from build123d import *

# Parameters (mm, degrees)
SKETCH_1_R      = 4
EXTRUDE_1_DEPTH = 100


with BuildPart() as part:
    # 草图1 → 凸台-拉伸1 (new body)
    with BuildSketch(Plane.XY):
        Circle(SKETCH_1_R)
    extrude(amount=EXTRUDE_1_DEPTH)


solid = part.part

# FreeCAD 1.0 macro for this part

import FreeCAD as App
import Part
import Sketcher
Q = App.Units.Quantity

doc = App.newDocument("Part")
body = doc.addObject("PartDesign::Body", "Body")

sketch1 = doc.addObject("Sketcher::SketchObject", "Sketch")
body.addObject(sketch1)
sketch1.AttachmentSupport = (doc.XY_Plane, [""])
sketch1.MapMode = "FlatFace"
sketch1.addGeometry(Part.Circle(App.Vector(0, 0, 0), App.Vector(0, 0, 1), 4), False)
sketch1.addConstraint(Sketcher.Constraint("Coincident", 0, 3, -1, 1))
sketch1.addConstraint(Sketcher.Constraint("Diameter", 0, Q("8 mm")))
pad1 = doc.addObject("PartDesign::Pad", "Pad")
body.addObject(pad1)
pad1.Profile = sketch1
pad1.Length = 100

doc.recompute()
